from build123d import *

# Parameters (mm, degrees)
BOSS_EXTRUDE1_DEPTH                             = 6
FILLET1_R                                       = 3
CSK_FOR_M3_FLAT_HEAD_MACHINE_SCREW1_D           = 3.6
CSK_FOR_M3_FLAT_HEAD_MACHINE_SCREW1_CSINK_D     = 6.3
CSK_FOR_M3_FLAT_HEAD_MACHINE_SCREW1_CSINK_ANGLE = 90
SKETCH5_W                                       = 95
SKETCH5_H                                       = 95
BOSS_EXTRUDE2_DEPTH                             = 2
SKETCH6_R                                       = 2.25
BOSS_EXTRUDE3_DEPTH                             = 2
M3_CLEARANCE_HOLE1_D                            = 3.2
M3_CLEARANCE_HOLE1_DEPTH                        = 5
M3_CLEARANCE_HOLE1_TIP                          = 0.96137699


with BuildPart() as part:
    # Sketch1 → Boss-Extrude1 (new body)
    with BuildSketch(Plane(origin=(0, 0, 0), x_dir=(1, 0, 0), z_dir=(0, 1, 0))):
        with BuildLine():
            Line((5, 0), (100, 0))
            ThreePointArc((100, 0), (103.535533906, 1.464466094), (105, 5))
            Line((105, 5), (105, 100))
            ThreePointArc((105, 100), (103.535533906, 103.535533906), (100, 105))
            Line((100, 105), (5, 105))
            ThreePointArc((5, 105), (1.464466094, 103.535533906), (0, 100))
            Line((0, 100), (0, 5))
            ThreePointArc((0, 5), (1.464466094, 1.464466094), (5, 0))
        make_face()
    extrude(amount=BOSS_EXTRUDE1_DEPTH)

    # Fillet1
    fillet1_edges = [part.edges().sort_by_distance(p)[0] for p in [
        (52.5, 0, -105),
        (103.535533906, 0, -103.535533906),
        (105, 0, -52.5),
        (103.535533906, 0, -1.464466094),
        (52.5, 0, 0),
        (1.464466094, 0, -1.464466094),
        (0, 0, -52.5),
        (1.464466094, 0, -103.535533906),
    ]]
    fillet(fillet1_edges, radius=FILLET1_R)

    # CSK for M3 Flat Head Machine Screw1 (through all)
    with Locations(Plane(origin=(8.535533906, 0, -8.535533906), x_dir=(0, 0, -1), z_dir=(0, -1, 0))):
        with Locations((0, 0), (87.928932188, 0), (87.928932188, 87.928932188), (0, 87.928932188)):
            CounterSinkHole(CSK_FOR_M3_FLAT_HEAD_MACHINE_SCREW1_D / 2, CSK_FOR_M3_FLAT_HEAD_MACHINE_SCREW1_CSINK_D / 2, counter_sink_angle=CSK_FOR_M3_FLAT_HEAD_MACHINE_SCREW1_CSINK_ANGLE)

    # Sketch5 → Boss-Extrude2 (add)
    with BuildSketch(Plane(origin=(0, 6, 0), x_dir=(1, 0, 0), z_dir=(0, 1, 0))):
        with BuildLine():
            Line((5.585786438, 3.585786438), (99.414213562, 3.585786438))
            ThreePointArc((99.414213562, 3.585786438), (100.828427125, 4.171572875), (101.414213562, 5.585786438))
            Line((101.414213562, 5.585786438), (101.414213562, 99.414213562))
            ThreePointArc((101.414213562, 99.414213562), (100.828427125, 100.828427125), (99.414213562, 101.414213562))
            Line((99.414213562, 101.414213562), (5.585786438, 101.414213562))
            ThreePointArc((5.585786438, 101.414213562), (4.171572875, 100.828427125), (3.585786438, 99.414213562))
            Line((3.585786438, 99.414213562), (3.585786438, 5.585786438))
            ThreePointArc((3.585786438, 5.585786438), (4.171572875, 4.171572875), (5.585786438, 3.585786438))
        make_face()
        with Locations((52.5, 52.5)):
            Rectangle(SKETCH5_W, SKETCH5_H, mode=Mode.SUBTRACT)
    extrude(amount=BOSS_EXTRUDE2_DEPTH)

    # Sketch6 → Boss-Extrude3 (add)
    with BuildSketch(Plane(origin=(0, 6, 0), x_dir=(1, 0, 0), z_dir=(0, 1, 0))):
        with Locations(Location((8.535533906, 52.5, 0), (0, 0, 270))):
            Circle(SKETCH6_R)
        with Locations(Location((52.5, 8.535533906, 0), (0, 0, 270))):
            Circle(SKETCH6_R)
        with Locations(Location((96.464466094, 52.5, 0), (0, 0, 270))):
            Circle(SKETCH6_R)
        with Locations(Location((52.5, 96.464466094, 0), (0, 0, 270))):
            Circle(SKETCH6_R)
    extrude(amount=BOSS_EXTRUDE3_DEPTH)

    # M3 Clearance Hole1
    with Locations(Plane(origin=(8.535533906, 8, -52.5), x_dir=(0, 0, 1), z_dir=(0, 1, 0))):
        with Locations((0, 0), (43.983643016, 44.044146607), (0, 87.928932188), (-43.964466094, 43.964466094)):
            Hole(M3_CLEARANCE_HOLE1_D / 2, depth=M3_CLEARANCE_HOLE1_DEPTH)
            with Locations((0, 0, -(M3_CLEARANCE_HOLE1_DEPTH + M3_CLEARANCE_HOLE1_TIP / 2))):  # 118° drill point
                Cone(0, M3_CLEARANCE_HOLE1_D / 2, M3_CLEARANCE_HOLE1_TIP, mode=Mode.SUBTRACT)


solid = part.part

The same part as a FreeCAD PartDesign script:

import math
import FreeCAD as App
import Part
import Sketcher


def edges_at(feature, points):
    """Names of the edges that pass closest to the given points."""
    edges = feature.Shape.Edges
    near = lambda p: min(range(len(edges)), key=lambda i: edges[i].distToShape(Part.Vertex(*p))[0])
    return sorted({f"Edge{near(p) + 1}" for p in points})

doc = App.newDocument("Part")
params = doc.addObject("Spreadsheet::Sheet", "Params")
for row, (alias, value) in enumerate([
    ("sketch1_radius", "5 mm"),
    ("sketch1_width", "95 mm"),
    ("pad1_length", "6 mm"),
    ("fillet_radius", "3 mm"),
    ("sketch2_diameter", "3.6 mm"),
    ("hole_diameter", "3.6 mm"),
    ("hole_csink_diameter", "6.3 mm"),
    ("sketch3_radius", "2 mm"),
    ("sketch3_width", "95 mm"),
    ("pad2_length", "2 mm"),
    ("sketch4_diameter", "4.5 mm"),
    ("pad3_length", "2 mm"),
    ("sketch5_diameter", "3.2 mm"),
    ("hole2_diameter", "3.2 mm"),
    ("hole2_depth", "5 mm"),
], start=1):
    params.set(f"A{row}", alias)
    params.set(f"B{row}", "=" + value)
    params.setAlias(f"B{row}", alias)

body = doc.addObject("PartDesign::Body", "Body")

# Sketch on XZ plane
sketch1 = body.newObject("Sketcher::SketchObject", "Sketch")
sketch1.AttachmentSupport = (doc.getObject("XZ_Plane"), [""])
sketch1.MapMode = "FlatFace"
sketch1.addGeometry([
    Part.LineSegment(App.Vector(5, 0, 0), App.Vector(100, 0, 0)),  # 0
    Part.ArcOfCircle(Part.Circle(App.Vector(100, -5, 0), App.Vector(0, 0, 1), 5), math.radians(0), math.radians(90)),  # 1
    Part.LineSegment(App.Vector(105, -5, 0), App.Vector(105, -100, 0)),  # 2
    Part.ArcOfCircle(Part.Circle(App.Vector(100, -100, 0), App.Vector(0, 0, 1), 5), math.radians(-90), math.radians(0)),  # 3
    Part.LineSegment(App.Vector(100, -105, 0), App.Vector(5, -105, 0)),  # 4
    Part.ArcOfCircle(Part.Circle(App.Vector(5, -100, 0), App.Vector(0, 0, 1), 5), math.radians(180), math.radians(270)),  # 5
    Part.LineSegment(App.Vector(0, -100, 0), App.Vector(0, -5, 0)),  # 6
    Part.ArcOfCircle(Part.Circle(App.Vector(5, -5, 0), App.Vector(0, 0, 1), 5), math.radians(90), math.radians(180)),  # 7
], False)
sketch1.addConstraint([
    Sketcher.Constraint("Tangent", 0, 2, 1, 2),
    Sketcher.Constraint("Tangent", 1, 1, 2, 1),
    Sketcher.Constraint("Tangent", 2, 2, 3, 2),
    Sketcher.Constraint("Tangent", 3, 1, 4, 1),
    Sketcher.Constraint("Tangent", 4, 2, 5, 2),
    Sketcher.Constraint("Tangent", 5, 1, 6, 1),
    Sketcher.Constraint("Tangent", 6, 2, 7, 2),
    Sketcher.Constraint("Tangent", 7, 1, 0, 1),
    Sketcher.Constraint("Horizontal", 0),
    Sketcher.Constraint("Vertical", 2),
    Sketcher.Constraint("Horizontal", 4),
    Sketcher.Constraint("Vertical", 6),
    Sketcher.Constraint("Equal", 1, 3),
    Sketcher.Constraint("Equal", 3, 5),
    Sketcher.Constraint("Equal", 5, 7),
    Sketcher.Constraint("PointOnObject", 0, 2, -1),
    Sketcher.Constraint("PointOnObject", 5, 1, -2),
    Sketcher.Constraint("Equal", 4, 2),
    Sketcher.Constraint("Radius", 1, 5.0),
    Sketcher.Constraint("DistanceX", 0, 1, 0, 2, 95.0),
])
sketch1.setExpression("Constraints[18]", "Params.sketch1_radius")
sketch1.setExpression("Constraints[19]", "Params.sketch1_width")
pad1 = body.newObject("PartDesign::Pad", "Pad")
pad1.Profile = sketch1
pad1.setExpression("Length", "Params.pad1_length")
pad1.Reversed = True
doc.recompute()

fillet = body.newObject("PartDesign::Fillet", "Fillet")
fillet.Base = (pad1, edges_at(pad1, [
    (52.5, 0, -105),
    (103.536, 0, -103.536),
    (105, 0, -52.5),
    (103.536, 0, -1.464),
    (52.5, 0, 0),
    (1.464, 0, -1.464),
    (0, 0, -52.5),
    (1.464, 0, -103.536),
]))
fillet.setExpression("Radius", "Params.fillet_radius")

# Sketch on XZ plane
sketch2 = body.newObject("Sketcher::SketchObject", "Sketch001")
sketch2.AttachmentSupport = (doc.getObject("XZ_Plane"), [""])
sketch2.MapMode = "FlatFace"
sketch2.addGeometry([
    Part.Circle(App.Vector(8.5, -8.5, 0), App.Vector(0, 0, 1), 1.8),
    Part.Circle(App.Vector(8.5, -96.5, 0), App.Vector(0, 0, 1), 1.8),
    Part.Circle(App.Vector(96.5, -96.5, 0), App.Vector(0, 0, 1), 1.8),
    Part.Circle(App.Vector(96.5, -8.5, 0), App.Vector(0, 0, 1), 1.8),
], False)
sketch2.addConstraint([
    Sketcher.Constraint("Equal", 0, 1),
    Sketcher.Constraint("Equal", 1, 2),
    Sketcher.Constraint("Equal", 2, 3),
    Sketcher.Constraint("Horizontal", 1, 3, 2, 3),
    Sketcher.Constraint("Horizontal", 0, 3, 3, 3),
    Sketcher.Constraint("Vertical", 0, 3, 1, 3),
    Sketcher.Constraint("Vertical", 2, 3, 3, 3),
    Sketcher.Constraint("Diameter", 0, 3.6),
    Sketcher.Constraint("DistanceX", -1, 1, 0, 3, 8.535534),
    Sketcher.Constraint("DistanceY", 0, 3, -1, 1, 8.535534),
    Sketcher.Constraint("DistanceY", 1, 3, -1, 1, 96.464466),
    Sketcher.Constraint("DistanceX", -1, 1, 2, 3, 96.464466),
])
sketch2.setExpression("Constraints[7]", "Params.sketch2_diameter")
doc.recompute()
hole = body.newObject("PartDesign::Hole", "Hole")
hole.Profile = sketch2
hole.ThreadType = "None"
hole.setExpression("Diameter", "Params.hole_diameter")
hole.DepthType = "ThroughAll"
hole.HoleCutType = "Countersink"
hole.setExpression("HoleCutDiameter", "Params.hole_csink_diameter")
hole.HoleCutCountersinkAngle = 90

# Sketch on XZ plane
sketch3 = body.newObject("Sketcher::SketchObject", "Sketch002")
sketch3.AttachmentSupport = (doc.getObject("XZ_Plane"), [""])
sketch3.MapMode = "FlatFace"
sketch3.AttachmentOffset = App.Placement(App.Vector(0, 0, -6), App.Rotation())
sketch3.addGeometry([
    Part.LineSegment(App.Vector(5.6, -3.6, 0), App.Vector(99.4, -3.6, 0)),  # 0
    Part.ArcOfCircle(Part.Circle(App.Vector(99.4, -5.6, 0), App.Vector(0, 0, 1), 2), math.radians(0), math.radians(90)),  # 1
    Part.LineSegment(App.Vector(101.4, -5.6, 0), App.Vector(101.4, -99.4, 0)),  # 2
    Part.ArcOfCircle(Part.Circle(App.Vector(99.4, -99.4, 0), App.Vector(0, 0, 1), 2), math.radians(-90), math.radians(0)),  # 3
    Part.LineSegment(App.Vector(99.4, -101.4, 0), App.Vector(5.6, -101.4, 0)),  # 4
    Part.ArcOfCircle(Part.Circle(App.Vector(5.6, -99.4, 0), App.Vector(0, 0, 1), 2), math.radians(180), math.radians(270)),  # 5
    Part.LineSegment(App.Vector(3.6, -99.4, 0), App.Vector(3.6, -5.6, 0)),  # 6
    Part.ArcOfCircle(Part.Circle(App.Vector(5.6, -5.6, 0), App.Vector(0, 0, 1), 2), math.radians(90), math.radians(180)),  # 7
    Part.LineSegment(App.Vector(100, -5, 0), App.Vector(5, -5, 0)),  # 8
    Part.LineSegment(App.Vector(5, -5, 0), App.Vector(5, -100, 0)),  # 9
    Part.LineSegment(App.Vector(5, -100, 0), App.Vector(100, -100, 0)),  # 10
    Part.LineSegment(App.Vector(100, -100, 0), App.Vector(100, -5, 0)),  # 11
], False)
sketch3.addConstraint([
    Sketcher.Constraint("Tangent", 0, 2, 1, 2),
    Sketcher.Constraint("Tangent", 1, 1, 2, 1),
    Sketcher.Constraint("Tangent", 2, 2, 3, 2),
    Sketcher.Constraint("Tangent", 3, 1, 4, 1),
    Sketcher.Constraint("Tangent", 4, 2, 5, 2),
    Sketcher.Constraint("Tangent", 5, 1, 6, 1),
    Sketcher.Constraint("Tangent", 6, 2, 7, 2),
    Sketcher.Constraint("Tangent", 7, 1, 0, 1),
    Sketcher.Constraint("Coincident", 8, 2, 9, 1),
    Sketcher.Constraint("Coincident", 9, 2, 10, 1),
    Sketcher.Constraint("Coincident", 10, 2, 11, 1),
    Sketcher.Constraint("Coincident", 11, 2, 8, 1),
    Sketcher.Constraint("Horizontal", 0),
    Sketcher.Constraint("Vertical", 2),
    Sketcher.Constraint("Horizontal", 4),
    Sketcher.Constraint("Vertical", 6),
    Sketcher.Constraint("Horizontal", 8),
    Sketcher.Constraint("Vertical", 9),
    Sketcher.Constraint("Horizontal", 10),
    Sketcher.Constraint("Vertical", 11),
    Sketcher.Constraint("Equal", 1, 3),
    Sketcher.Constraint("Equal", 3, 5),
    Sketcher.Constraint("Equal", 5, 7),
    Sketcher.Constraint("Equal", 4, 2),
    Sketcher.Constraint("Equal", 10, 9),
    Sketcher.Constraint("Radius", 1, 2.0),
    Sketcher.Constraint("DistanceX", 8, 2, 8, 1, 95.0),
    Sketcher.Constraint("DistanceX", -1, 1, 8, 2, 5.0),
    Sketcher.Constraint("DistanceY", 8, 2, -1, 1, 5.0),
    Sketcher.Constraint("DistanceX", 0, 1, 0, 2, 93.828427),
    Sketcher.Constraint("DistanceX", -1, 1, 1, 3, 99.414214),
    Sketcher.Constraint("DistanceY", 1, 3, -1, 1, 5.585786),
])
sketch3.setExpression("Constraints[25]", "Params.sketch3_radius")
sketch3.setExpression("Constraints[26]", "Params.sketch3_width")
pad2 = body.newObject("PartDesign::Pad", "Pad001")
pad2.Profile = sketch3
pad2.setExpression("Length", "Params.pad2_length")
pad2.Reversed = True

# Sketch on XZ plane
sketch4 = body.newObject("Sketcher::SketchObject", "Sketch003")
sketch4.AttachmentSupport = (doc.getObject("XZ_Plane"), [""])
sketch4.MapMode = "FlatFace"
sketch4.AttachmentOffset = App.Placement(App.Vector(0, 0, -6), App.Rotation())
sketch4.addGeometry([
    Part.Circle(App.Vector(8.5, -52.5, 0), App.Vector(0, 0, 1), 2.2),
    Part.Circle(App.Vector(52.5, -8.5, 0), App.Vector(0, 0, 1), 2.2),
    Part.Circle(App.Vector(96.5, -52.5, 0), App.Vector(0, 0, 1), 2.2),
    Part.Circle(App.Vector(52.5, -96.5, 0), App.Vector(0, 0, 1), 2.2),
], False)
sketch4.addConstraint([
    Sketcher.Constraint("Equal", 0, 1),
    Sketcher.Constraint("Equal", 1, 2),
    Sketcher.Constraint("Equal", 2, 3),
    Sketcher.Constraint("Horizontal", 0, 3, 2, 3),
    Sketcher.Constraint("Vertical", 1, 3, 3, 3),
    Sketcher.Constraint("Diameter", 0, 4.5),
    Sketcher.Constraint("DistanceY", 0, 3, -1, 1, 52.5),
    Sketcher.Constraint("DistanceX", -1, 1, 1, 3, 52.5),
    Sketcher.Constraint("DistanceX", -1, 1, 0, 3, 8.535534),
    Sketcher.Constraint("DistanceY", 1, 3, -1, 1, 8.535534),
    Sketcher.Constraint("DistanceX", -1, 1, 2, 3, 96.464466),
    Sketcher.Constraint("DistanceY", 3, 3, -1, 1, 96.464466),
])
sketch4.setExpression("Constraints[5]", "Params.sketch4_diameter")
pad3 = body.newObject("PartDesign::Pad", "Pad002")
pad3.Profile = sketch4
pad3.setExpression("Length", "Params.pad3_length")
pad3.Reversed = True

# Sketch on XZ plane
sketch5 = body.newObject("Sketcher::SketchObject", "Sketch004")
sketch5.AttachmentSupport = (doc.getObject("XZ_Plane"), [""])
sketch5.MapMode = "FlatFace"
sketch5.AttachmentOffset = App.Placement(App.Vector(0, 0, -8), App.Rotation())
sketch5.addGeometry([
    Part.Circle(App.Vector(8.5, -52.5, 0), App.Vector(0, 0, 1), 1.6),
    Part.Circle(App.Vector(52.6, -8.5, 0), App.Vector(0, 0, 1), 1.6),
    Part.Circle(App.Vector(96.5, -52.5, 0), App.Vector(0, 0, 1), 1.6),
    Part.Circle(App.Vector(52.5, -96.5, 0), App.Vector(0, 0, 1), 1.6),
], False)
sketch5.addConstraint([
    Sketcher.Constraint("Equal", 0, 1),
    Sketcher.Constraint("Equal", 1, 2),
    Sketcher.Constraint("Equal", 2, 3),
    Sketcher.Constraint("Horizontal", 0, 3, 2, 3),
    Sketcher.Constraint("Diameter", 0, 3.2),
    Sketcher.Constraint("DistanceY", 0, 3, -1, 1, 52.5),
    Sketcher.Constraint("DistanceX", -1, 1, 3, 3, 52.5),
    Sketcher.Constraint("DistanceX", -1, 1, 1, 3, 52.579681),
    Sketcher.Constraint("DistanceY", 3, 3, 1, 3, 87.948109),
    Sketcher.Constraint("DistanceX", -1, 1, 0, 3, 8.535534),
    Sketcher.Constraint("DistanceY", 1, 3, -1, 1, 8.516357),
    Sketcher.Constraint("DistanceX", -1, 1, 2, 3, 96.464466),
])
sketch5.setExpression("Constraints[4]", "Params.sketch5_diameter")
doc.recompute()
hole2 = body.newObject("PartDesign::Hole", "Hole001")
hole2.Profile = sketch5
hole2.ThreadType = "None"
hole2.setExpression("Diameter", "Params.hole2_diameter")
hole2.DepthType = "Dimension"
hole2.setExpression("Depth", "Params.hole2_depth")
hole2.DrillPoint = "Angled"
hole2.DrillPointAngle = 118
hole2.Reversed = True

doc.recompute()
